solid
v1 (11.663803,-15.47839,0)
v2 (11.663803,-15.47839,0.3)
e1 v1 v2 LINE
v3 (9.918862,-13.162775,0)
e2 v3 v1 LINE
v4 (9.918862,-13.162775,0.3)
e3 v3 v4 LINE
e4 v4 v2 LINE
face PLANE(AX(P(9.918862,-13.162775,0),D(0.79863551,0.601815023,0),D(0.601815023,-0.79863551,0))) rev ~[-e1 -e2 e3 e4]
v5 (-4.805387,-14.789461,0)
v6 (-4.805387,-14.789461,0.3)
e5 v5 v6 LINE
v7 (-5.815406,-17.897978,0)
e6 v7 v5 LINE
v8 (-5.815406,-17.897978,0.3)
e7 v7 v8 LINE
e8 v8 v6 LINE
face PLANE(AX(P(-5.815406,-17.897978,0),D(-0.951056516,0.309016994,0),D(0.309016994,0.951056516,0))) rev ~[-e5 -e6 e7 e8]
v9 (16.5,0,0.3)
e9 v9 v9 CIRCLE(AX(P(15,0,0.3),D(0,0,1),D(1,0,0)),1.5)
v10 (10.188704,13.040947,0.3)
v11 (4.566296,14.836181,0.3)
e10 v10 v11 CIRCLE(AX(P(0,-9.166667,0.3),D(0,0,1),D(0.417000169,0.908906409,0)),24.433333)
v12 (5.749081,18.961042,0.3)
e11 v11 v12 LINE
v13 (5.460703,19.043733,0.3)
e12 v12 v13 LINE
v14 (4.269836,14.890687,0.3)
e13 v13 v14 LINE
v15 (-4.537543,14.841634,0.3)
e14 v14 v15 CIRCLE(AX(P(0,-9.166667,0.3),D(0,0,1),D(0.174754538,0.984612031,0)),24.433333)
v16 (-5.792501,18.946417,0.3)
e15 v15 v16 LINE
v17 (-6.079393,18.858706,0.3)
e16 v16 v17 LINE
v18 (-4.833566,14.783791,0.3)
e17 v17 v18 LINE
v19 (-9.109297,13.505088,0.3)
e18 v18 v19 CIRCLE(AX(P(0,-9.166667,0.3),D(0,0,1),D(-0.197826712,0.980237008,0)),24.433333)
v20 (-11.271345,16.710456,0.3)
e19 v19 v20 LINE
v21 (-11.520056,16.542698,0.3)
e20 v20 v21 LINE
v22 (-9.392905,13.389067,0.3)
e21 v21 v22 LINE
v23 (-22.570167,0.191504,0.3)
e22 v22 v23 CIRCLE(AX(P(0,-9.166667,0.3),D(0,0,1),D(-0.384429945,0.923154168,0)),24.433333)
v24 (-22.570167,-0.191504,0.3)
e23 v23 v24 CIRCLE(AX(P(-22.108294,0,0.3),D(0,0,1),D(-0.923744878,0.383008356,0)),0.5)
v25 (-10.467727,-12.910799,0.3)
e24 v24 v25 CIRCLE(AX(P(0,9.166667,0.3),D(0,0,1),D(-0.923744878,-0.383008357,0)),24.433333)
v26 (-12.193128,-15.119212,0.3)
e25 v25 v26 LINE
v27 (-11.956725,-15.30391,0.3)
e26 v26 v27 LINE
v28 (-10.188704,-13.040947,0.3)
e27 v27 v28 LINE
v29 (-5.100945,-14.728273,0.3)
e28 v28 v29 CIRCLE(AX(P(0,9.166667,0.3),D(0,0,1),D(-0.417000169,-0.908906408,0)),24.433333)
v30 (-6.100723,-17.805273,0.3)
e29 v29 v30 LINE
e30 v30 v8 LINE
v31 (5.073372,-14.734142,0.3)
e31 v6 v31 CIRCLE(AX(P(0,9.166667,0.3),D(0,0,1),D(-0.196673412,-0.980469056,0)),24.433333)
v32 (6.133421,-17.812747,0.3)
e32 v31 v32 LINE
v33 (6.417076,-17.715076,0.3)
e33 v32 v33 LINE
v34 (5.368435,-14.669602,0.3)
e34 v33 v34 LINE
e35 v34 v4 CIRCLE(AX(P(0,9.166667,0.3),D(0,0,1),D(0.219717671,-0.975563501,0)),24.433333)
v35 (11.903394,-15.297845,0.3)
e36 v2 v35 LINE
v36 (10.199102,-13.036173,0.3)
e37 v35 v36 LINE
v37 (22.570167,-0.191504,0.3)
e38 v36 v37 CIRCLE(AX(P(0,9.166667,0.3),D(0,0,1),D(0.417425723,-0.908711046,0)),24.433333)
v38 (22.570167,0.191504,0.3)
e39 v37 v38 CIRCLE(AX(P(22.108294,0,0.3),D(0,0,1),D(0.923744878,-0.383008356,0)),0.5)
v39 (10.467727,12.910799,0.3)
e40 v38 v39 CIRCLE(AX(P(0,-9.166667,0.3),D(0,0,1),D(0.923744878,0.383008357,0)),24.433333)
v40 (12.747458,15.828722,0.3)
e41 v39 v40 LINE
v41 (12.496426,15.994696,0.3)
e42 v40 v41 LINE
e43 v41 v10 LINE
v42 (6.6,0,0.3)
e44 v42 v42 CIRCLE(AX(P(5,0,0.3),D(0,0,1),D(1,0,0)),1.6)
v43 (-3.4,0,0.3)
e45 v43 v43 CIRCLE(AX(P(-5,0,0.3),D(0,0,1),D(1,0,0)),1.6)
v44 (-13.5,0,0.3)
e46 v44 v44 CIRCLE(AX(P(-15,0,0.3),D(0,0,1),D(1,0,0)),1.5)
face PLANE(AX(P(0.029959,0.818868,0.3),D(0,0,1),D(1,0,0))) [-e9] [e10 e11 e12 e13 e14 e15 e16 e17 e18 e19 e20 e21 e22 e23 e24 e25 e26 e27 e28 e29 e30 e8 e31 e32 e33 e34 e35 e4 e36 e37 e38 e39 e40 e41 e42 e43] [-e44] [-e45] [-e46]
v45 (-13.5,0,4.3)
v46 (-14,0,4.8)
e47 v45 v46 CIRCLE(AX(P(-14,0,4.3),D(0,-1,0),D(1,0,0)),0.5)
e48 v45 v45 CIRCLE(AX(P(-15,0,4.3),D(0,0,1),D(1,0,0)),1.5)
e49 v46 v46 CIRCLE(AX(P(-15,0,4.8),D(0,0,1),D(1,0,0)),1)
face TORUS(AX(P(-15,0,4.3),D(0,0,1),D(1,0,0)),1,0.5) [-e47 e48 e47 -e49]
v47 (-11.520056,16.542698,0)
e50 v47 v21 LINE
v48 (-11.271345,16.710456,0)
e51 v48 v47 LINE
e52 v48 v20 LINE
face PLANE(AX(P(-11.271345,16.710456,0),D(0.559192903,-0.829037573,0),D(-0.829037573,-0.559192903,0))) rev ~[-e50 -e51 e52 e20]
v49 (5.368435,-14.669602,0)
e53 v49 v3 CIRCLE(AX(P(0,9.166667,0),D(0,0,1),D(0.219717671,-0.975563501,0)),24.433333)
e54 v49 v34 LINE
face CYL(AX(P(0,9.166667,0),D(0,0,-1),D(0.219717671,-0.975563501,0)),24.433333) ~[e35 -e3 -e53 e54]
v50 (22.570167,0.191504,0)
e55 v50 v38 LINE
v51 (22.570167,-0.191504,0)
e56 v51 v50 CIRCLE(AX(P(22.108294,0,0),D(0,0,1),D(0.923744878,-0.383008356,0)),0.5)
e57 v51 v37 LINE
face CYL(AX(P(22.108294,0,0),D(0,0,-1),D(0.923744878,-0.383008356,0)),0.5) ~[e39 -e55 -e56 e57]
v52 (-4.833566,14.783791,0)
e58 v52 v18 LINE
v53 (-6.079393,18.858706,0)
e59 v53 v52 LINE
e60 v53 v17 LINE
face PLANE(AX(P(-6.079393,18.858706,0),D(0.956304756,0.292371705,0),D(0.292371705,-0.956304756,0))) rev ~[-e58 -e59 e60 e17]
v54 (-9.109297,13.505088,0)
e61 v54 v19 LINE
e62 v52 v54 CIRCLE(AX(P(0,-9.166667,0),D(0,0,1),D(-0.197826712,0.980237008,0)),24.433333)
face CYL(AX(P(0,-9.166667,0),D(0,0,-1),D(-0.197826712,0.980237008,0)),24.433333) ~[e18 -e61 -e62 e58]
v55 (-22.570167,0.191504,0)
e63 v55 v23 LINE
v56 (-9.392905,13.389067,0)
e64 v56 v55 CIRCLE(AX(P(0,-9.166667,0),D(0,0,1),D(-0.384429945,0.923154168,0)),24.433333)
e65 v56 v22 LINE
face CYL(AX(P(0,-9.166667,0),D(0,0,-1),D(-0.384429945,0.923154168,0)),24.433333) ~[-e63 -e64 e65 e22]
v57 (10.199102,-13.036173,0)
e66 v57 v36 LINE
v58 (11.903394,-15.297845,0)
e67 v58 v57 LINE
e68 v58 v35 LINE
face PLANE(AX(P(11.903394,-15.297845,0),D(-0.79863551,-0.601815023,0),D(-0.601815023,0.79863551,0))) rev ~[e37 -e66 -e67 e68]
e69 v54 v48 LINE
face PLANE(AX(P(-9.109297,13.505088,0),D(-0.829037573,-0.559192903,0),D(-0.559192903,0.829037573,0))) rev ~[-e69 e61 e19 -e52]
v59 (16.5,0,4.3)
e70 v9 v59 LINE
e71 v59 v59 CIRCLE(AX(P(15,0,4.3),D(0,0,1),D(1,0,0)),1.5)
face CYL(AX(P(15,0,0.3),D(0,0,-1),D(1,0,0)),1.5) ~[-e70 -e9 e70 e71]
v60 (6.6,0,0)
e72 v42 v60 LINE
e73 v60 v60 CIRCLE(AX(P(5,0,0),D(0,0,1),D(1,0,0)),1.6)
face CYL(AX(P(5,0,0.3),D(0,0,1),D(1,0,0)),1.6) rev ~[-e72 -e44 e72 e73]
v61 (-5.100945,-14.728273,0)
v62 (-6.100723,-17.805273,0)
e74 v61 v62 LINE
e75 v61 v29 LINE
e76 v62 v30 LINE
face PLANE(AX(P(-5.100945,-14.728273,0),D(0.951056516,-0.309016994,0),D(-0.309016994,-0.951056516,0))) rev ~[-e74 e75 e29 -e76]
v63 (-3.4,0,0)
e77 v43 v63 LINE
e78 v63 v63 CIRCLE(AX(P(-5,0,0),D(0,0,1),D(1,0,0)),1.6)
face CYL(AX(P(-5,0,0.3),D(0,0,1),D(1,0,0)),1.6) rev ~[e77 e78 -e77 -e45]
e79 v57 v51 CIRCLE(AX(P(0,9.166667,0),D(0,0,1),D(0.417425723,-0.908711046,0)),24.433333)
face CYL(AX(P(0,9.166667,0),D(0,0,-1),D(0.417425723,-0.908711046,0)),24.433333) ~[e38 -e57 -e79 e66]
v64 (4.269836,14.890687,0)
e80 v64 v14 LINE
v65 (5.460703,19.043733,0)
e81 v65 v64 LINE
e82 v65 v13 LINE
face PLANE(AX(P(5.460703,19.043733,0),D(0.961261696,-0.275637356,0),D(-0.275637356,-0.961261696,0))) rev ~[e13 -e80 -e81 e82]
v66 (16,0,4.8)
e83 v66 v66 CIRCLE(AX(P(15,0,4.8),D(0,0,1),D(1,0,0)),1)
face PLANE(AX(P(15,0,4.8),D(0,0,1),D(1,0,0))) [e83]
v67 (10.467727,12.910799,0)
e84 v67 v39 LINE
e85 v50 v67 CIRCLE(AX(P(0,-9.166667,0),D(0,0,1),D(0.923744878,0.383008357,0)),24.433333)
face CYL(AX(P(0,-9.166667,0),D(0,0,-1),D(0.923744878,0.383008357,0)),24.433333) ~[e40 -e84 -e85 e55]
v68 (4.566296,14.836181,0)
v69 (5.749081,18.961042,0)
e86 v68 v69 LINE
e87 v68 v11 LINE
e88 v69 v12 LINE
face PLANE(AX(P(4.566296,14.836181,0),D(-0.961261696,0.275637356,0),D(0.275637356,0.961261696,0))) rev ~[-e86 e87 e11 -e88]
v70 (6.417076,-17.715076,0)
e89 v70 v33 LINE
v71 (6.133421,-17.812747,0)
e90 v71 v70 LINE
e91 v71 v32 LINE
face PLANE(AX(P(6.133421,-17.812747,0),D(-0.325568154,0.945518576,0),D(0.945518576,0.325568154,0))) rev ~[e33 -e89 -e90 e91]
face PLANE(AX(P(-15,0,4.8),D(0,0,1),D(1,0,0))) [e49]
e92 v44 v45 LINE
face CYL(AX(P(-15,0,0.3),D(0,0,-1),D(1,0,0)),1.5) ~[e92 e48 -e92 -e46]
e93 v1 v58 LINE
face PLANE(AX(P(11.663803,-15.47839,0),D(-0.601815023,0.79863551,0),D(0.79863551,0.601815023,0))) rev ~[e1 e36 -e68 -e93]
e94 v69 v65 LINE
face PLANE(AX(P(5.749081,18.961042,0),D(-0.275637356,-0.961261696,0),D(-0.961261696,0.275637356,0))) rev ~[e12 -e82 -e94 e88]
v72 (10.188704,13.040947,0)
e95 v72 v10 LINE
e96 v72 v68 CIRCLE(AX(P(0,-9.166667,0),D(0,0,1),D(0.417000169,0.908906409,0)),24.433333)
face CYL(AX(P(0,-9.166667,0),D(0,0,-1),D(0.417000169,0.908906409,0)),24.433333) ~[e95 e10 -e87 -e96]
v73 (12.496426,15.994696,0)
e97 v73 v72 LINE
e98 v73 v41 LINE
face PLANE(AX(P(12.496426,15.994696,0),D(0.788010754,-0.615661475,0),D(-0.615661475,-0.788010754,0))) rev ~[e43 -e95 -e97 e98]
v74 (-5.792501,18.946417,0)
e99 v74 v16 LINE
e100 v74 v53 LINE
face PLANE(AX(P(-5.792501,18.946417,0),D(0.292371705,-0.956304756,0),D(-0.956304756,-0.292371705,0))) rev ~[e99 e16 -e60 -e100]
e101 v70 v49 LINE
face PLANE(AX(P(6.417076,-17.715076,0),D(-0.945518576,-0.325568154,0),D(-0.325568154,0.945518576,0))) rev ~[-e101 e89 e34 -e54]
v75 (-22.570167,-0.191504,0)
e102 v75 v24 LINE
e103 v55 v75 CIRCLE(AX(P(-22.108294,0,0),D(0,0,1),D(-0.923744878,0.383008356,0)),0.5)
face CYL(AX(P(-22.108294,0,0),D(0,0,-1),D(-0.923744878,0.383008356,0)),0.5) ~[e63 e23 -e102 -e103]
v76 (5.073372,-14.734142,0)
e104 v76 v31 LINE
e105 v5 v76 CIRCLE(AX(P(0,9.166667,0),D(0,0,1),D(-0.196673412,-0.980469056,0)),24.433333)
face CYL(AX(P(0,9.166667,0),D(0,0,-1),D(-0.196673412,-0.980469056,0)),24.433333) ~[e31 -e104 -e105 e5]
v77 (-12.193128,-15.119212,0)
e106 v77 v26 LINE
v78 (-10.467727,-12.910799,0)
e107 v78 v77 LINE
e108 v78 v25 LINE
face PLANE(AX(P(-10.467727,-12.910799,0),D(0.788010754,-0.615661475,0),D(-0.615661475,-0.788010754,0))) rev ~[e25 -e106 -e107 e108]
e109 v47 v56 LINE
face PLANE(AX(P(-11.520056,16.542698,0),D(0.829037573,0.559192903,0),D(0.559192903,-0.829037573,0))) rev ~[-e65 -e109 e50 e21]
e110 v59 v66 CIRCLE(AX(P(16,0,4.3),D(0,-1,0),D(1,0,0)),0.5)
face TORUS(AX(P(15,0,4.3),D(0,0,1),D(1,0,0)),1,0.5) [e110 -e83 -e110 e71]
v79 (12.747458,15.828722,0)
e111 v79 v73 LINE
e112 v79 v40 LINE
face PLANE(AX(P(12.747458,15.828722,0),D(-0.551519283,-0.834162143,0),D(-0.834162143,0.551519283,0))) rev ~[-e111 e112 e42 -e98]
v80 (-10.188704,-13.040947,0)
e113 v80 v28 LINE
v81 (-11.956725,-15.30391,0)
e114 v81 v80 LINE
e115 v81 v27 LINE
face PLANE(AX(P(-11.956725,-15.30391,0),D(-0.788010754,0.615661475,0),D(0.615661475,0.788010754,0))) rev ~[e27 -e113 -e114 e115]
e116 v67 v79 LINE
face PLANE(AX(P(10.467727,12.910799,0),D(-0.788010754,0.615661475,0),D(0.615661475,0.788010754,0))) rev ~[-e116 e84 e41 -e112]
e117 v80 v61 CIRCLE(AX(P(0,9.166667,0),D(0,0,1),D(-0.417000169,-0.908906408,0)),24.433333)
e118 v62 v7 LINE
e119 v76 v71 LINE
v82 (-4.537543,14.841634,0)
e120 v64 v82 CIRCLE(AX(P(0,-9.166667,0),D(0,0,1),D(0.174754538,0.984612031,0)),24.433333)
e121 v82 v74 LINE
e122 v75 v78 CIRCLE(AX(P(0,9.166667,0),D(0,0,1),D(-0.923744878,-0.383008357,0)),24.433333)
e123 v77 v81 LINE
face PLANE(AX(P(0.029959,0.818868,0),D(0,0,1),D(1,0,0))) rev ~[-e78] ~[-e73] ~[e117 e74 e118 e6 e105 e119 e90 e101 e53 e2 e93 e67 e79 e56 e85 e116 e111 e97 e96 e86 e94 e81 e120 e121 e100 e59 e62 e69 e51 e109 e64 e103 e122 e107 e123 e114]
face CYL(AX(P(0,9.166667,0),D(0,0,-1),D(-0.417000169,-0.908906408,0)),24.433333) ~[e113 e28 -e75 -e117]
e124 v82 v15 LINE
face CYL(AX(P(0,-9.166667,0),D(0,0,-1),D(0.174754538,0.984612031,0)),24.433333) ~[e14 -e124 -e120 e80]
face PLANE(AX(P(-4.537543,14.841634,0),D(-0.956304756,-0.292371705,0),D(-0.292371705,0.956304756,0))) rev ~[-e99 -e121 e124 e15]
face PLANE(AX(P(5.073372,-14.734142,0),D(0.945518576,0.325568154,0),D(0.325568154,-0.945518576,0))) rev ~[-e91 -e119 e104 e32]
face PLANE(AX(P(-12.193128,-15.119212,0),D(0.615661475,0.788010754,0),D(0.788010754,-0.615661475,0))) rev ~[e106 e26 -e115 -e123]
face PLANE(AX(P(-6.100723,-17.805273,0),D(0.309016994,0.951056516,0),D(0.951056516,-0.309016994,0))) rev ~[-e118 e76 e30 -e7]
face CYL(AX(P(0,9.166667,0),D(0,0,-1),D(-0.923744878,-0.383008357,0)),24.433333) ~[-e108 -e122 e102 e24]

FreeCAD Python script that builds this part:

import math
import FreeCAD as App
import Part
import Sketcher

V = App.Vector
Q = App.Units.Quantity


def edges_at(feature, points):
    """Names of the edges that pass closest to the given points."""
    edges = feature.Shape.Edges
    near = lambda p: min(range(len(edges)), key=lambda i: edges[i].distToShape(Part.Vertex(*p))[0])
    return sorted({f"Edge{near(p) + 1}" for p in points})

doc = App.newDocument("Part")
params = doc.addObject("Spreadsheet::Sheet", "Params")
for row, (alias, value) in enumerate([
    ("sketch1_radius", "0.5 mm"),
    ("sketch1_length", "0.3 mm"),
    ("pad1_length", "0.3 mm"),
    ("sketch2_diameter", "3.2 mm"),
    ("sketch3_diameter", "3 mm"),
    ("pad2_length", "4.5 mm"),
    ("fillet_radius", "0.5 mm"),
], start=1):
    params.set(f"A{row}", alias)
    params.set(f"B{row}", "=" + value)
    params.setAlias(f"B{row}", alias)

body = doc.addObject("PartDesign::Body", "Body")

# Sketch on XY plane
sketch1 = body.newObject("Sketcher::SketchObject", "Sketch")
sketch1.AttachmentSupport = (doc.getObject("XY_Plane"), [""])
sketch1.MapMode = "FlatFace"
sketch1.addGeometry([
    Part.ArcOfCircle(Part.Circle(V(22.11, 0, 0), V(0, 0, 1), 0.5), math.radians(-23), math.radians(23)),  # 0
    Part.ArcOfCircle(Part.Circle(V(0, -9.17, 0), V(0, 0, 1), 24.43), math.radians(23), math.radians(65)),  # 1
    Part.LineSegment(V(10.47, 12.91, 0), V(12.75, 15.83, 0)),  # 2
    Part.LineSegment(V(12.75, 15.83, 0), V(12.5, 15.99, 0)),  # 3
    Part.LineSegment(V(12.5, 15.99, 0), V(10.19, 13.04, 0)),  # 4
    Part.ArcOfCircle(Part.Circle(V(0, -9.17, 0), V(0, 0, 1), 24.43), math.radians(65.35), math.radians(79.23)),  # 5
    Part.LineSegment(V(4.57, 14.84, 0), V(5.75, 18.96, 0)),  # 6
    Part.LineSegment(V(5.75, 18.96, 0), V(5.46, 19.04, 0)),  # 7
    Part.LineSegment(V(5.46, 19.04, 0), V(4.27, 14.89, 0)),  # 8
    Part.ArcOfCircle(Part.Circle(V(0, -9.17, 0), V(0, 0, 1), 24.43), math.radians(80), math.radians(101)),  # 9
    Part.LineSegment(V(-4.54, 14.84, 0), V(-5.79, 18.95, 0)),  # 10
    Part.LineSegment(V(-5.79, 18.95, 0), V(-6.08, 18.86, 0)),  # 11
    Part.LineSegment(V(-6.08, 18.86, 0), V(-4.83, 14.78, 0)),  # 12
    Part.ArcOfCircle(Part.Circle(V(0, -9.17, 0), V(0, 0, 1), 24.43), math.radians(101.41), math.radians(111.89)),  # 13
    Part.LineSegment(V(-9.11, 13.51, 0), V(-11.27, 16.71, 0)),  # 14
    Part.LineSegment(V(-11.27, 16.71, 0), V(-11.52, 16.54, 0)),  # 15
    Part.LineSegment(V(-11.52, 16.54, 0), V(-9.39, 13.39, 0)),  # 16
    Part.ArcOfCircle(Part.Circle(V(0, -9.17, 0), V(0, 0, 1), 24.43), math.radians(113), math.radians(157)),  # 17
    Part.ArcOfCircle(Part.Circle(V(-22.11, 0, 0), V(0, 0, 1), 0.5), math.radians(157), math.radians(203)),  # 18
    Part.ArcOfCircle(Part.Circle(V(0, 9.17, 0), V(0, 0, 1), 24.43), math.radians(-157), math.radians(-115)),  # 19
    Part.LineSegment(V(-10.47, -12.91, 0), V(-12.19, -15.12, 0)),  # 20
    Part.LineSegment(V(-12.19, -15.12, 0), V(-11.96, -15.3, 0)),  # 21
    Part.LineSegment(V(-11.96, -15.3, 0), V(-10.19, -13.04, 0)),  # 22
    Part.ArcOfCircle(Part.Circle(V(0, 9.17, 0), V(0, 0, 1), 24.43), math.radians(-114.65), math.radians(-102.05)),  # 23
    Part.LineSegment(V(-5.1, -14.73, 0), V(-6.1, -17.81, 0)),  # 24
    Part.LineSegment(V(-6.1, -17.81, 0), V(-5.82, -17.9, 0)),  # 25
    Part.LineSegment(V(-5.82, -17.9, 0), V(-4.81, -14.79, 0)),  # 26
    Part.ArcOfCircle(Part.Circle(V(0, 9.17, 0), V(0, 0, 1), 24.43), math.radians(-101), math.radians(-78)),  # 27
    Part.LineSegment(V(5.07, -14.73, 0), V(6.13, -17.81, 0)),  # 28
    Part.LineSegment(V(6.13, -17.81, 0), V(6.42, -17.72, 0)),  # 29
    Part.LineSegment(V(6.42, -17.72, 0), V(5.37, -14.67, 0)),  # 30
    Part.ArcOfCircle(Part.Circle(V(0, 9.17, 0), V(0, 0, 1), 24.43), math.radians(-77.31), math.radians(-66.05)),  # 31
    Part.LineSegment(V(9.92, -13.16, 0), V(11.66, -15.48, 0)),  # 32
    Part.LineSegment(V(11.66, -15.48, 0), V(11.9, -15.3, 0)),  # 33
    Part.LineSegment(V(11.9, -15.3, 0), V(10.2, -13.04, 0)),  # 34
    Part.ArcOfCircle(Part.Circle(V(0, 9.17, 0), V(0, 0, 1), 24.43), math.radians(-65), math.radians(-23)),  # 35
], False)
sketch1.addConstraint([
    Sketcher.Constraint("Tangent", 0, 2, 1, 1),
    Sketcher.Constraint("Coincident", 1, 2, 2, 1),
    Sketcher.Constraint("Coincident", 2, 2, 3, 1),
    Sketcher.Constraint("Coincident", 3, 2, 4, 1),
    Sketcher.Constraint("Coincident", 4, 2, 5, 1),
    Sketcher.Constraint("Coincident", 5, 2, 6, 1),
    Sketcher.Constraint("Coincident", 6, 2, 7, 1),
    Sketcher.Constraint("Coincident", 7, 2, 8, 1),
    Sketcher.Constraint("Coincident", 8, 2, 9, 1),
    Sketcher.Constraint("Coincident", 9, 2, 10, 1),
    Sketcher.Constraint("Coincident", 10, 2, 11, 1),
    Sketcher.Constraint("Coincident", 11, 2, 12, 1),
    Sketcher.Constraint("Coincident", 12, 2, 13, 1),
    Sketcher.Constraint("Coincident", 13, 2, 14, 1),
    Sketcher.Constraint("Coincident", 14, 2, 15, 1),
    Sketcher.Constraint("Coincident", 15, 2, 16, 1),
    Sketcher.Constraint("Coincident", 16, 2, 17, 1),
    Sketcher.Constraint("Tangent", 17, 2, 18, 1),
    Sketcher.Constraint("Tangent", 18, 2, 19, 1),
    Sketcher.Constraint("Coincident", 19, 2, 20, 1),
    Sketcher.Constraint("Coincident", 20, 2, 21, 1),
    Sketcher.Constraint("Coincident", 21, 2, 22, 1),
    Sketcher.Constraint("Coincident", 22, 2, 23, 1),
    Sketcher.Constraint("Coincident", 23, 2, 24, 1),
    Sketcher.Constraint("Coincident", 24, 2, 25, 1),
    Sketcher.Constraint("Coincident", 25, 2, 26, 1),
    Sketcher.Constraint("Coincident", 26, 2, 27, 1),
    Sketcher.Constraint("Coincident", 27, 2, 28, 1),
    Sketcher.Constraint("Coincident", 28, 2, 29, 1),
    Sketcher.Constraint("Coincident", 29, 2, 30, 1),
    Sketcher.Constraint("Coincident", 30, 2, 31, 1),
    Sketcher.Constraint("Coincident", 31, 2, 32, 1),
    Sketcher.Constraint("Coincident", 32, 2, 33, 1),
    Sketcher.Constraint("Coincident", 33, 2, 34, 1),
    Sketcher.Constraint("Coincident", 34, 2, 35, 1),
    Sketcher.Constraint("Tangent", 35, 2, 0, 1),
    Sketcher.Constraint("Coincident", 5, 3, 1, 3),
    Sketcher.Constraint("Coincident", 9, 3, 1, 3),
    Sketcher.Constraint("Coincident", 13, 3, 1, 3),
    Sketcher.Constraint("Coincident", 17, 3, 1, 3),
    Sketcher.Constraint("Coincident", 23, 3, 19, 3),
    Sketcher.Constraint("Coincident", 27, 3, 19, 3),
    Sketcher.Constraint("Coincident", 31, 3, 19, 3),
    Sketcher.Constraint("Coincident", 35, 3, 19, 3),
    Sketcher.Constraint("Equal", 1, 5),
    Sketcher.Constraint("Equal", 5, 9),
    Sketcher.Constraint("Equal", 9, 13),
    Sketcher.Constraint("Equal", 13, 17),
    Sketcher.Constraint("Equal", 0, 18),
    Sketcher.Constraint("Equal", 17, 19),
    Sketcher.Constraint("Equal", 19, 23),
    Sketcher.Constraint("Equal", 23, 27),
    Sketcher.Constraint("Equal", 27, 31),
    Sketcher.Constraint("Equal", 31, 35),
    Sketcher.Constraint("Symmetric", 0, 3, 18, 3, -1, 1),
    Sketcher.Constraint("PointOnObject", 0, 3, -1),
    Sketcher.Constraint("Parallel", 2, 4),
    Sketcher.Constraint("Perpendicular", 6, 7),
    Sketcher.Constraint("Perpendicular", 7, 8),
    Sketcher.Constraint("Perpendicular", 10, 11),
    Sketcher.Constraint("Perpendicular", 11, 12),
    Sketcher.Constraint("Perpendicular", 14, 15),
    Sketcher.Constraint("Perpendicular", 15, 16),
    Sketcher.Constraint("Parallel", 4, 20),
    Sketcher.Constraint("Perpendicular", 20, 21),
    Sketcher.Constraint("Perpendicular", 21, 22),
    Sketcher.Constraint("Perpendicular", 24, 25),
    Sketcher.Constraint("Perpendicular", 25, 26),
    Sketcher.Constraint("Perpendicular", 28, 29),
    Sketcher.Constraint("Perpendicular", 29, 30),
    Sketcher.Constraint("Perpendicular", 32, 33),
    Sketcher.Constraint("Perpendicular", 33, 34),
    Sketcher.Constraint("Equal", 7, 11),
    Sketcher.Constraint("Equal", 11, 15),
    Sketcher.Constraint("Equal", 15, 21),
    Sketcher.Constraint("Equal", 21, 25),
    Sketcher.Constraint("Equal", 25, 29),
    Sketcher.Constraint("Equal", 29, 33),
    Sketcher.Constraint("Radius", 0, 0.5),
    Sketcher.Constraint("Angle", 2, Q("52 deg")),
    Sketcher.Constraint("Angle", 6, Q("74 deg")),
    Sketcher.Constraint("Angle", 10, Q("107 deg")),
    Sketcher.Constraint("Angle", 14, Q("124 deg")),
    Sketcher.Constraint("Angle", 24, Q("-108 deg")),
    Sketcher.Constraint("Angle", 28, Q("-71 deg")),
    Sketcher.Constraint("Angle", 32, Q("-53 deg")),
    Sketcher.Constraint("Distance", 7, 0.3),
    Sketcher.Constraint("Radius", 1, 24.433333),
    Sketcher.Constraint("DistanceX", 7, 2, 4, 2, 4.728001),
    Sketcher.Constraint("DistanceX", 21, 2, 19, 2, 1.488998),
    Sketcher.Constraint("DistanceY", 24, 2, 23, 2, 3.077),
    Sketcher.Constraint("DistanceY", -1, 1, 1, 2, 12.910799),
    Sketcher.Constraint("DistanceX", 10, 2, -1, 1, 5.792501),
    Sketcher.Constraint("DistanceY", -1, 1, 15, 2, 16.542698),
    Sketcher.Constraint("DistanceY", 19, 2, -1, 1, 12.910799),
    Sketcher.Constraint("DistanceY", 30, 2, -1, 1, 14.669602),
    Sketcher.Constraint("DistanceX", -1, 1, 34, 2, 10.199102),
    Sketcher.Constraint("DistanceX", 1, 2, 3, 2, 2.028699),
    Sketcher.Constraint("DistanceX", 22, 2, 25, 2, 4.373299),
    Sketcher.Constraint("DistanceY", 29, 2, 31, 2, 4.552302),
    Sketcher.Constraint("DistanceY", 28, 2, 33, 2, 2.514902),
    Sketcher.Constraint("Distance", 3, 0.30094),
    Sketcher.Constraint("Distance", 4, 3.748361),
    Sketcher.Constraint("Distance", 6, 4.29109),
    Sketcher.Constraint("Distance", 10, 4.292339),
    Sketcher.Constraint("Distance", 14, 3.866372),
    Sketcher.Constraint("DistanceX", -1, 1, 2, 2, 12.747458),
])
sketch1.setExpression("Constraints[78]", "Params.sketch1_radius")
sketch1.setExpression("Constraints[86]", "Params.sketch1_length")
pad1 = body.newObject("PartDesign::Pad", "Pad")
pad1.Profile = sketch1
pad1.setExpression("Length", "Params.pad1_length")

# Sketch on XY plane
sketch2 = body.newObject("Sketcher::SketchObject", "Sketch001")
sketch2.AttachmentSupport = (doc.getObject("XY_Plane"), [""])
sketch2.MapMode = "FlatFace"
sketch2.AttachmentOffset = App.Placement(V(0, 0, 0.3), App.Rotation())
sketch2.addGeometry([
    Part.Circle(V(5, 0, 0), V(0, 0, 1), 1.6),
    Part.Circle(V(-5, 0, 0), V(0, 0, 1), 1.6),
], False)
sketch2.addConstraint([
    Sketcher.Constraint("Equal", 0, 1),
    Sketcher.Constraint("Symmetric", 0, 3, 1, 3, -1, 1),
    Sketcher.Constraint("PointOnObject", 0, 3, -1),
    Sketcher.Constraint("Diameter", 0, 3.2),
    Sketcher.Constraint("DistanceX", -1, 1, 0, 3, 5.0),
])
sketch2.setExpression("Constraints[3]", "Params.sketch2_diameter")
pocket1 = body.newObject("PartDesign::Pocket", "Pocket")
pocket1.Profile = sketch2
pocket1.Type = "ThroughAll"

# Sketch on XY plane
sketch3 = body.newObject("Sketcher::SketchObject", "Sketch002")
sketch3.AttachmentSupport = (doc.getObject("XY_Plane"), [""])
sketch3.MapMode = "FlatFace"
sketch3.AttachmentOffset = App.Placement(V(0, 0, 0.3), App.Rotation())
sketch3.addGeometry([
    Part.Circle(V(-15, 0, 0), V(0, 0, 1), 1.5),
    Part.Circle(V(15, 0, 0), V(0, 0, 1), 1.5),
], False)
sketch3.addConstraint([
    Sketcher.Constraint("Equal", 0, 1),
    Sketcher.Constraint("Symmetric", 0, 3, 1, 3, -1, 1),
    Sketcher.Constraint("PointOnObject", 0, 3, -1),
    Sketcher.Constraint("Diameter", 0, 3.0),
    Sketcher.Constraint("DistanceX", 0, 3, -1, 1, 15.0),
])
sketch3.setExpression("Constraints[3]", "Params.sketch3_diameter")
pad2 = body.newObject("PartDesign::Pad", "Pad001")
pad2.Profile = sketch3
pad2.setExpression("Length", "Params.pad2_length")
doc.recompute()

fillet = body.newObject("PartDesign::Fillet", "Fillet")
fillet.Base = (pad2, edges_at(pad2, [(-16.5, 0, 4.8), (13.5, 0, 4.8)]))
fillet.setExpression("Radius", "Params.fillet_radius")

doc.recompute()
